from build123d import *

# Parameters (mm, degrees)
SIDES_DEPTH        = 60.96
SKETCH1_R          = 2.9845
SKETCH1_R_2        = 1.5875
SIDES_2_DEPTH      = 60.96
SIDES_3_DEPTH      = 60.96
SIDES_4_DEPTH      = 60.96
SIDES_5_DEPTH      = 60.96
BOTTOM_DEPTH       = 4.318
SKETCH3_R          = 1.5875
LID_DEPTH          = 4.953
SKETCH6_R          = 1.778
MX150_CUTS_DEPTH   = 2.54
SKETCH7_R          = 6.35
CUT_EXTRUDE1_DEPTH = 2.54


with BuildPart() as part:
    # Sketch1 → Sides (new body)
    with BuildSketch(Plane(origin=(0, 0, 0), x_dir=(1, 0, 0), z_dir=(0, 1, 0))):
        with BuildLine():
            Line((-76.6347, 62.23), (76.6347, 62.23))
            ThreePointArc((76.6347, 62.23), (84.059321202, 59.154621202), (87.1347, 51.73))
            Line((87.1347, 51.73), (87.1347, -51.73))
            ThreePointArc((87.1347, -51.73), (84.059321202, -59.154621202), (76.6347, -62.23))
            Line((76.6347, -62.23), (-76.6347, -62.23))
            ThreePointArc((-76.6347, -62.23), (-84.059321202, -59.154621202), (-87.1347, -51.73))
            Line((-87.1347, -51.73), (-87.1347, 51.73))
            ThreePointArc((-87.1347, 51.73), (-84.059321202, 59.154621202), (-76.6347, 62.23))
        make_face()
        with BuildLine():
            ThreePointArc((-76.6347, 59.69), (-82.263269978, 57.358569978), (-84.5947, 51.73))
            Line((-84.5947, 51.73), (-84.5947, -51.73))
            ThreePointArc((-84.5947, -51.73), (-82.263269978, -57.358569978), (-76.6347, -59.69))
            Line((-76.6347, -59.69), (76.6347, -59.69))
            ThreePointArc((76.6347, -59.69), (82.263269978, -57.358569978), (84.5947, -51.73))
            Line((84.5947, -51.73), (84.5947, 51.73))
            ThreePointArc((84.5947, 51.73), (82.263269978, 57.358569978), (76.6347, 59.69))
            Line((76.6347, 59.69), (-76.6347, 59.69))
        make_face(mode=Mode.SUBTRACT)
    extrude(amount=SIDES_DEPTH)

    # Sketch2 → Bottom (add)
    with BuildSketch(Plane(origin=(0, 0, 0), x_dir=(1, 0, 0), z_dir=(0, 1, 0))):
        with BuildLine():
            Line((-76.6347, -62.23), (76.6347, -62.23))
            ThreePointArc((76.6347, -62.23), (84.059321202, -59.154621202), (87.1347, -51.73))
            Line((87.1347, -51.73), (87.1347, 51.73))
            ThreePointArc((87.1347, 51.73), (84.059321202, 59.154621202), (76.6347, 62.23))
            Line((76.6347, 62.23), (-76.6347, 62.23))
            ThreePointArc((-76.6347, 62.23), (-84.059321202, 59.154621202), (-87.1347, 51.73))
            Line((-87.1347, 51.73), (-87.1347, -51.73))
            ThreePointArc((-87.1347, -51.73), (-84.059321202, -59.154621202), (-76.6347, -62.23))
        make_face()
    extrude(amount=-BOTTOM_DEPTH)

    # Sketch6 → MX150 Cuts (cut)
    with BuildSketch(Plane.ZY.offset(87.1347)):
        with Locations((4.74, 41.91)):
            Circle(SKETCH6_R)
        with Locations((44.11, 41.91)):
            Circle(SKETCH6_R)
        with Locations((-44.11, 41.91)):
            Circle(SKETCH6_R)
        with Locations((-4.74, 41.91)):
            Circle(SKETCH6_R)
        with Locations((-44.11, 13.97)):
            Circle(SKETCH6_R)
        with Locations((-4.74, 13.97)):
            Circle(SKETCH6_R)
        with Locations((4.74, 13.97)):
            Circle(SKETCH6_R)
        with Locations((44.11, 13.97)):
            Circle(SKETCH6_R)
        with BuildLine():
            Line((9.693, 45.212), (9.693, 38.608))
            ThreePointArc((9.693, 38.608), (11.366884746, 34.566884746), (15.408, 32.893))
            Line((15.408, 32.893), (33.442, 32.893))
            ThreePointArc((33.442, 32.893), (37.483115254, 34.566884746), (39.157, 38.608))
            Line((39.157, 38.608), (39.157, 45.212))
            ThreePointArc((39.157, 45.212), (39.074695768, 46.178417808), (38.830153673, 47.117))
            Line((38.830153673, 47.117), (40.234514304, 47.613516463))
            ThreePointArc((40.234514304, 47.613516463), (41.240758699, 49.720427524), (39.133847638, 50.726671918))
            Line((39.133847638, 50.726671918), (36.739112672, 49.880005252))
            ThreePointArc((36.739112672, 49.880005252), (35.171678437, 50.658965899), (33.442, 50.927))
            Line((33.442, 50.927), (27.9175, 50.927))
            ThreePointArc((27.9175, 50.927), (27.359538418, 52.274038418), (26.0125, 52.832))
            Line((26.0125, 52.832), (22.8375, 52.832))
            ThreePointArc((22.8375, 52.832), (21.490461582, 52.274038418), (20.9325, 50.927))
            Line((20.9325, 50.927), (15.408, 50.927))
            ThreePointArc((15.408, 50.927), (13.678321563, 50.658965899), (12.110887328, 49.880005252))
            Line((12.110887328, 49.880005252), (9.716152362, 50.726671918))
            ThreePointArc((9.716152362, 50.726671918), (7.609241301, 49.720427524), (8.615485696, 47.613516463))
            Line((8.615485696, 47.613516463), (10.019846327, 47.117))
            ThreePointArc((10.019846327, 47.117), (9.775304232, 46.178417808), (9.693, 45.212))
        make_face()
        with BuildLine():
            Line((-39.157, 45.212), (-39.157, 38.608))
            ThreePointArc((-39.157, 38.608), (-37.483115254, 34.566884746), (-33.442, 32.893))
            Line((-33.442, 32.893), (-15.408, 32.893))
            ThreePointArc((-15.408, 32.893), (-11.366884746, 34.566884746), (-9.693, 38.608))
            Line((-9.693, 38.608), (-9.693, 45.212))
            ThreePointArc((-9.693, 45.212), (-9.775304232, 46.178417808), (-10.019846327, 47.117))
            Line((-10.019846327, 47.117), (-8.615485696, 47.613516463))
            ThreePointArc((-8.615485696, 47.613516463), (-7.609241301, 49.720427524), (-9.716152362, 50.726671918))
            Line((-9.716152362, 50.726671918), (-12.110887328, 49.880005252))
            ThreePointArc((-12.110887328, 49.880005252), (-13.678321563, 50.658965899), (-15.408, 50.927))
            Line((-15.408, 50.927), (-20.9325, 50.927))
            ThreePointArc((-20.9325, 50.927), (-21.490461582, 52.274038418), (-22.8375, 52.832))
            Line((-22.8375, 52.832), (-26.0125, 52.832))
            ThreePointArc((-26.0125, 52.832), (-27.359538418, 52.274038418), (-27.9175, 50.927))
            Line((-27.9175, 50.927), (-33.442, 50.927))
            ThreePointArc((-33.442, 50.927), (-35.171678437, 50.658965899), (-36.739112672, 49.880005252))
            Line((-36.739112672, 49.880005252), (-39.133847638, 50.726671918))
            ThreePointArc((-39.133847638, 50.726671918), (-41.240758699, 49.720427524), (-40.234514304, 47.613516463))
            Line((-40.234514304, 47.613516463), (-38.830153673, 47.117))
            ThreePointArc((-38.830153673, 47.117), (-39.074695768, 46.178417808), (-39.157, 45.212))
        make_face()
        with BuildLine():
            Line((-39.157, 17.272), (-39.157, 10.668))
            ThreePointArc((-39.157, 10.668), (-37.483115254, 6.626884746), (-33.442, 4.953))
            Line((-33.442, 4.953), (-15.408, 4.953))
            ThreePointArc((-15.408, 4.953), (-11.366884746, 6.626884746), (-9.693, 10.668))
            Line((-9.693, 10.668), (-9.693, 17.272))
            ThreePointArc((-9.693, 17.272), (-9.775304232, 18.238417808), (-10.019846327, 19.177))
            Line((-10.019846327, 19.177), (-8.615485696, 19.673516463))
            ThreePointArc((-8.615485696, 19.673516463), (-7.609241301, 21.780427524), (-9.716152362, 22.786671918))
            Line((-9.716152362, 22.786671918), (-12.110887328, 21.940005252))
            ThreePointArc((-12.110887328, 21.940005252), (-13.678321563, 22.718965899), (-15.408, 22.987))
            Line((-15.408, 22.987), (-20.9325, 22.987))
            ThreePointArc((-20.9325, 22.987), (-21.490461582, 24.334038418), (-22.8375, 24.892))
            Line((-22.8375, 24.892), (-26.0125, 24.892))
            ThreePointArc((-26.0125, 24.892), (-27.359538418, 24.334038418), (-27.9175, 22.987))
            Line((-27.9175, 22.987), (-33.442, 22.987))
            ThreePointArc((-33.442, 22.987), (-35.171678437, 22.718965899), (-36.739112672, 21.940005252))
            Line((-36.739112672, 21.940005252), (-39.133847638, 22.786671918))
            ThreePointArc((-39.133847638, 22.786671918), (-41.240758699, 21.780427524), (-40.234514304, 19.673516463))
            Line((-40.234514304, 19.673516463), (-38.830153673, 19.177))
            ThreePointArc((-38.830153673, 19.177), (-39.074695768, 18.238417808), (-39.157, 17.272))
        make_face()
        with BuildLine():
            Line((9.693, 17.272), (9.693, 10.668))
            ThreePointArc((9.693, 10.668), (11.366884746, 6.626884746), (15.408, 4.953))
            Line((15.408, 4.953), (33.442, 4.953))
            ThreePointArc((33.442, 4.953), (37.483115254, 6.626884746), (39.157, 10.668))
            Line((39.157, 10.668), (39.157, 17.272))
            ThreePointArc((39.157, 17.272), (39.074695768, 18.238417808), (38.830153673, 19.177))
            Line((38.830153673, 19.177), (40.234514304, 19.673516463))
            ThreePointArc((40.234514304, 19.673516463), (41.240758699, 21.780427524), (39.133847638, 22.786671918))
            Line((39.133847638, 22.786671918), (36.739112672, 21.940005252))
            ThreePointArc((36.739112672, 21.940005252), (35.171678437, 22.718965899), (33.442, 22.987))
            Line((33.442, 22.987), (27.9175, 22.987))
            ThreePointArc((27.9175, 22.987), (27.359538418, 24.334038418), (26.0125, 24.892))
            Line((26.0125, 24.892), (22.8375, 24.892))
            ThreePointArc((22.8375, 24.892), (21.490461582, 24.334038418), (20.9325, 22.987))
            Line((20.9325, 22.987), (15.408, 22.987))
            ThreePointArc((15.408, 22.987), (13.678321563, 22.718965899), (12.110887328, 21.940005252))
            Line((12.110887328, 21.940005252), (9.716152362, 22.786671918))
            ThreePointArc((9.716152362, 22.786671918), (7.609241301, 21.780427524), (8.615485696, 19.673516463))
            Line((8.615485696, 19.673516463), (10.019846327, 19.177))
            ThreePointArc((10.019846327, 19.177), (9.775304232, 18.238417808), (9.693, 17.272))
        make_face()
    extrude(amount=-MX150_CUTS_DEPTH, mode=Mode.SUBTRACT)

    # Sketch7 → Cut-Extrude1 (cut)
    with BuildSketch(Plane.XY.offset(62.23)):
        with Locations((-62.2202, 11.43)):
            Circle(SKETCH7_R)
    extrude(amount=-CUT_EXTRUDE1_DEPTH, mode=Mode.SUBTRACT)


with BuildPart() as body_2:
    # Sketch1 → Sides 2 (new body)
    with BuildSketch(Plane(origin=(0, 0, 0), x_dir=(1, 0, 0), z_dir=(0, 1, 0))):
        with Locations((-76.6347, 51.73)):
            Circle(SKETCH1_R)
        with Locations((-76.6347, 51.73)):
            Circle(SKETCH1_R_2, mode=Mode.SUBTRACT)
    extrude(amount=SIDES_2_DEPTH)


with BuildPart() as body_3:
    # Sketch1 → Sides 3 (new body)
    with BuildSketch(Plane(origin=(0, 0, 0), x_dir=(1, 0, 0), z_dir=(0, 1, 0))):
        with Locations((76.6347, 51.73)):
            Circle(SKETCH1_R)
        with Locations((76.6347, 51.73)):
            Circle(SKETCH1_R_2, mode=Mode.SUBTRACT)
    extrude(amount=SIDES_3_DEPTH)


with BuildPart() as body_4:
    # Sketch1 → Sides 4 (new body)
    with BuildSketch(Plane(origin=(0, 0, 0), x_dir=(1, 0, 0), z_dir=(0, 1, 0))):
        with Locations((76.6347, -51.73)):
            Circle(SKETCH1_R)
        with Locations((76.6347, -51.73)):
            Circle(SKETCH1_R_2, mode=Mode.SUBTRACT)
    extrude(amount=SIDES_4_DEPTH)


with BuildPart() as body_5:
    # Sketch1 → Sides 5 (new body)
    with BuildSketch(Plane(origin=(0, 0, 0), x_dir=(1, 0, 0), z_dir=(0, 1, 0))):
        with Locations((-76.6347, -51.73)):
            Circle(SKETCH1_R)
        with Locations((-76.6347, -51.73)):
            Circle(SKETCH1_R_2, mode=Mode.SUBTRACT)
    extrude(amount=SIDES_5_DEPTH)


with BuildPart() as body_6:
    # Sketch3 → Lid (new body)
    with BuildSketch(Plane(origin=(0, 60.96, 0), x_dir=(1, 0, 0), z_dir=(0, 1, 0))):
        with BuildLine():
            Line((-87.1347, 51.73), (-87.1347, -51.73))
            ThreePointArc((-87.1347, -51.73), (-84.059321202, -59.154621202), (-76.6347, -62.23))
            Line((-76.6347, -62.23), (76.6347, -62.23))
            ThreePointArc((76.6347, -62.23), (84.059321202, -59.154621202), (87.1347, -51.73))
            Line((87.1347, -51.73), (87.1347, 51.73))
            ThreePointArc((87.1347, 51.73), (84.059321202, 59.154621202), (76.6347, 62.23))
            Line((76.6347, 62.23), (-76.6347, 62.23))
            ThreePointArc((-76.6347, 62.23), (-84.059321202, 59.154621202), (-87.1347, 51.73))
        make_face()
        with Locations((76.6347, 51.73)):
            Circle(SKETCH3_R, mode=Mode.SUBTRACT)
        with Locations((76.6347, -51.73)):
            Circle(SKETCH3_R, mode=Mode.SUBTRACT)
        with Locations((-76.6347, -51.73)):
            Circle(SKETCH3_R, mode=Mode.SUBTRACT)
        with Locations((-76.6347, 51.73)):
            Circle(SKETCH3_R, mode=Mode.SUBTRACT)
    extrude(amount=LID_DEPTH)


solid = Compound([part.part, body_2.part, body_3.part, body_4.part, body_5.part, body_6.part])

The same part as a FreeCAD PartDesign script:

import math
import FreeCAD as App
import Part
import Sketcher
Q = App.Units.Quantity

doc = App.newDocument("Part")
body = doc.addObject("PartDesign::Body", "Body")

# Sketch on XZ plane
sketch1 = body.newObject("Sketcher::SketchObject", "Sketch")
sketch1.AttachmentSupport = (doc.getObject("XZ_Plane"), [""])
sketch1.MapMode = "FlatFace"
sketch1.addGeometry(Part.LineSegment(App.Vector(77, -62, 0), App.Vector(-77, -62, 0)), False)
sketch1.addGeometry(Part.ArcOfCircle(Part.Circle(App.Vector(-77, -52, 0), App.Vector(0, 0, 1), 11), math.radians(-180), math.radians(-90)), False)
sketch1.addGeometry(Part.LineSegment(App.Vector(-87, -52, 0), App.Vector(-87, 52, 0)), False)
sketch1.addGeometry(Part.ArcOfCircle(Part.Circle(App.Vector(-77, 52, 0), App.Vector(0, 0, 1), 11), math.radians(90), math.radians(180)), False)
sketch1.addGeometry(Part.LineSegment(App.Vector(-77, 62, 0), App.Vector(77, 62, 0)), False)
sketch1.addGeometry(Part.ArcOfCircle(Part.Circle(App.Vector(77, 52, 0), App.Vector(0, 0, 1), 11), math.radians(0), math.radians(90)), False)
sketch1.addGeometry(Part.LineSegment(App.Vector(87, 52, 0), App.Vector(87, -52, 0)), False)
sketch1.addGeometry(Part.ArcOfCircle(Part.Circle(App.Vector(77, -52, 0), App.Vector(0, 0, 1), 11), math.radians(-90), math.radians(0)), False)
sketch1.addGeometry(Part.LineSegment(App.Vector(-77, -60, 0), App.Vector(77, -60, 0)), False)
sketch1.addGeometry(Part.ArcOfCircle(Part.Circle(App.Vector(77, -52, 0), App.Vector(0, 0, 1), 8), math.radians(-90), math.radians(0)), False)
sketch1.addGeometry(Part.LineSegment(App.Vector(85, -52, 0), App.Vector(85, 52, 0)), False)
sketch1.addGeometry(Part.ArcOfCircle(Part.Circle(App.Vector(77, 52, 0), App.Vector(0, 0, 1), 8), math.radians(0), math.radians(90)), False)
sketch1.addGeometry(Part.LineSegment(App.Vector(77, 60, 0), App.Vector(-77, 60, 0)), False)
sketch1.addGeometry(Part.ArcOfCircle(Part.Circle(App.Vector(-77, 52, 0), App.Vector(0, 0, 1), 8), math.radians(90), math.radians(180)), False)
sketch1.addGeometry(Part.LineSegment(App.Vector(-85, 52, 0), App.Vector(-85, -52, 0)), False)
sketch1.addGeometry(Part.ArcOfCircle(Part.Circle(App.Vector(-77, -52, 0), App.Vector(0, 0, 1), 8), math.radians(-180), math.radians(-90)), False)
sketch1.addConstraint(Sketcher.Constraint("Tangent", 0, 2, 1, 2))
sketch1.addConstraint(Sketcher.Constraint("Tangent", 1, 1, 2, 1))
sketch1.addConstraint(Sketcher.Constraint("Tangent", 2, 2, 3, 2))
sketch1.addConstraint(Sketcher.Constraint("Tangent", 3, 1, 4, 1))
sketch1.addConstraint(Sketcher.Constraint("Tangent", 4, 2, 5, 2))
sketch1.addConstraint(Sketcher.Constraint("Tangent", 5, 1, 6, 1))
sketch1.addConstraint(Sketcher.Constraint("Tangent", 6, 2, 7, 2))
sketch1.addConstraint(Sketcher.Constraint("Tangent", 7, 1, 0, 1))
sketch1.addConstraint(Sketcher.Constraint("Tangent", 8, 2, 9, 1))
sketch1.addConstraint(Sketcher.Constraint("Tangent", 9, 2, 10, 1))
sketch1.addConstraint(Sketcher.Constraint("Tangent", 10, 2, 11, 1))
sketch1.addConstraint(Sketcher.Constraint("Tangent", 11, 2, 12, 1))
sketch1.addConstraint(Sketcher.Constraint("Tangent", 12, 2, 13, 1))
sketch1.addConstraint(Sketcher.Constraint("Tangent", 13, 2, 14, 1))
sketch1.addConstraint(Sketcher.Constraint("Tangent", 14, 2, 15, 1))
sketch1.addConstraint(Sketcher.Constraint("Tangent", 15, 2, 8, 1))
sketch1.addConstraint(Sketcher.Constraint("Horizontal", 0))
sketch1.addConstraint(Sketcher.Constraint("Vertical", 2))
sketch1.addConstraint(Sketcher.Constraint("Horizontal", 4))
sketch1.addConstraint(Sketcher.Constraint("Vertical", 6))
sketch1.addConstraint(Sketcher.Constraint("Horizontal", 8))
sketch1.addConstraint(Sketcher.Constraint("Vertical", 10))
sketch1.addConstraint(Sketcher.Constraint("Horizontal", 12))
sketch1.addConstraint(Sketcher.Constraint("Vertical", 14))
sketch1.addConstraint(Sketcher.Constraint("Coincident", 9, 3, 7, 3))
sketch1.addConstraint(Sketcher.Constraint("Coincident", 11, 3, 5, 3))
sketch1.addConstraint(Sketcher.Constraint("Coincident", 13, 3, 3, 3))
sketch1.addConstraint(Sketcher.Constraint("Equal", 1, 3))
sketch1.addConstraint(Sketcher.Constraint("Equal", 3, 5))
sketch1.addConstraint(Sketcher.Constraint("Equal", 5, 7))
sketch1.addConstraint(Sketcher.Constraint("Equal", 13, 15))
sketch1.addConstraint(Sketcher.Constraint("Symmetric", 1, 3, 5, 3, -1, 1))
sketch1.addConstraint(Sketcher.Constraint("DistanceY", 7, 1, 8, 2, Q("0.1 in")))
sketch1.addConstraint(Sketcher.Constraint("DistanceY", 0, 2, -1, 1, Q("2.45 in")))
sketch1.addConstraint(Sketcher.Constraint("Radius", 1, 10.5))
sketch1.addConstraint(Sketcher.Constraint("DistanceX", 0, 2, 0, 1, 153.2694))
pad1 = body.newObject("PartDesign::Pad", "Pad")
pad1.Profile = sketch1
pad1.Length = Q("2.4 in")
pad1.Reversed = True

# Sketch on XZ plane
sketch2 = body.newObject("Sketcher::SketchObject", "Sketch001")
sketch2.AttachmentSupport = (doc.getObject("XZ_Plane"), [""])
sketch2.MapMode = "FlatFace"
sketch2.addGeometry(Part.LineSegment(App.Vector(-77, 62, 0), App.Vector(77, 62, 0)), False)
sketch2.addGeometry(Part.ArcOfCircle(Part.Circle(App.Vector(77, 52, 0), App.Vector(0, 0, 1), 11), math.radians(0), math.radians(90)), False)
sketch2.addGeometry(Part.LineSegment(App.Vector(87, 52, 0), App.Vector(87, -52, 0)), False)
sketch2.addGeometry(Part.ArcOfCircle(Part.Circle(App.Vector(77, -52, 0), App.Vector(0, 0, 1), 11), math.radians(-90), math.radians(0)), False)
sketch2.addGeometry(Part.LineSegment(App.Vector(77, -62, 0), App.Vector(-77, -62, 0)), False)
sketch2.addGeometry(Part.ArcOfCircle(Part.Circle(App.Vector(-77, -52, 0), App.Vector(0, 0, 1), 11), math.radians(-180), math.radians(-90)), False)
sketch2.addGeometry(Part.LineSegment(App.Vector(-87, -52, 0), App.Vector(-87, 52, 0)), False)
sketch2.addGeometry(Part.ArcOfCircle(Part.Circle(App.Vector(-77, 52, 0), App.Vector(0, 0, 1), 11), math.radians(90), math.radians(180)), False)
sketch2.addConstraint(Sketcher.Constraint("Tangent", 0, 2, 1, 2))
sketch2.addConstraint(Sketcher.Constraint("Tangent", 1, 1, 2, 1))
sketch2.addConstraint(Sketcher.Constraint("Tangent", 2, 2, 3, 2))
sketch2.addConstraint(Sketcher.Constraint("Tangent", 3, 1, 4, 1))
sketch2.addConstraint(Sketcher.Constraint("Tangent", 4, 2, 5, 2))
sketch2.addConstraint(Sketcher.Constraint("Tangent", 5, 1, 6, 1))
sketch2.addConstraint(Sketcher.Constraint("Tangent", 6, 2, 7, 2))
sketch2.addConstraint(Sketcher.Constraint("Tangent", 7, 1, 0, 1))
sketch2.addConstraint(Sketcher.Constraint("Horizontal", 0))
sketch2.addConstraint(Sketcher.Constraint("Vertical", 2))
sketch2.addConstraint(Sketcher.Constraint("Horizontal", 4))
sketch2.addConstraint(Sketcher.Constraint("Vertical", 6))
sketch2.addConstraint(Sketcher.Constraint("Equal", 1, 3))
sketch2.addConstraint(Sketcher.Constraint("Equal", 3, 5))
sketch2.addConstraint(Sketcher.Constraint("Equal", 5, 7))
sketch2.addConstraint(Sketcher.Constraint("Symmetric", 1, 3, 5, 3, -1, 1))
sketch2.addConstraint(Sketcher.Constraint("DistanceY", 3, 1, 0, 2, Q("4.9 in")))
sketch2.addConstraint(Sketcher.Constraint("Radius", 1, 10.5))
sketch2.addConstraint(Sketcher.Constraint("DistanceX", 0, 1, 0, 2, 153.2694))
pad2 = body.newObject("PartDesign::Pad", "Pad001")
pad2.Profile = sketch2
pad2.Length = Q("0.17 in")

# Sketch on YZ plane
sketch3 = body.newObject("Sketcher::SketchObject", "Sketch002")
sketch3.AttachmentSupport = (doc.getObject("YZ_Plane"), [""])
sketch3.MapMode = "FlatFace"
sketch3.AttachmentOffset = App.Placement(App.Vector(0, 0, -3.4305 * 25.4), App.Rotation())
sketch3.addGeometry(Part.Circle(App.Vector(41.9, 4.7, 0), App.Vector(0, 0, 1), 1.8), False)
sketch3.addGeometry(Part.Circle(App.Vector(41.9, 44.1, 0), App.Vector(0, 0, 1), 1.8), False)
sketch3.addGeometry(Part.Circle(App.Vector(41.9, -44.1, 0), App.Vector(0, 0, 1), 1.8), False)
sketch3.addGeometry(Part.Circle(App.Vector(41.9, -4.7, 0), App.Vector(0, 0, 1), 1.8), False)
sketch3.addGeometry(Part.Circle(App.Vector(14, -44.1, 0), App.Vector(0, 0, 1), 1.8), False)
sketch3.addGeometry(Part.Circle(App.Vector(14, -4.7, 0), App.Vector(0, 0, 1), 1.8), False)
sketch3.addGeometry(Part.Circle(App.Vector(14, 4.7, 0), App.Vector(0, 0, 1), 1.8), False)
sketch3.addGeometry(Part.Circle(App.Vector(14, 44.1, 0), App.Vector(0, 0, 1), 1.8), False)
sketch3.addGeometry(Part.LineSegment(App.Vector(45.2, 9.7, 0), App.Vector(38.6, 9.7, 0)), False)
sketch3.addGeometry(Part.ArcOfCircle(Part.Circle(App.Vector(38.6, 15.4, 0), App.Vector(0, 0, 1), 5.7), math.radians(-180), math.radians(-90)), False)
sketch3.addGeometry(Part.LineSegment(App.Vector(32.9, 15.4, 0), App.Vector(32.9, 33.4, 0)), False)
sketch3.addGeometry(Part.ArcOfCircle(Part.Circle(App.Vector(38.6, 33.4, 0), App.Vector(0, 0, 1), 5.7), math.radians(90), math.radians(180)), False)
sketch3.addGeometry(Part.LineSegment(App.Vector(38.6, 39.2, 0), App.Vector(45.2, 39.2, 0)), False)
sketch3.addGeometry(Part.ArcOfCircle(Part.Circle(App.Vector(45.2, 33.4, 0), App.Vector(0, 0, 1), 5.7), math.radians(70.53), math.radians(90)), False)
sketch3.addGeometry(Part.LineSegment(App.Vector(47.1, 38.8, 0), App.Vector(47.6, 40.2, 0)), False)
sketch3.addGeometry(Part.ArcOfCircle(Part.Circle(App.Vector(49.2, 39.7, 0), App.Vector(0, 0, 1), 1.7), math.radians(-19), math.radians(161)), False)
sketch3.addGeometry(Part.LineSegment(App.Vector(50.7, 39.1, 0), App.Vector(49.9, 36.7, 0)), False)
sketch3.addGeometry(Part.ArcOfCircle(Part.Circle(App.Vector(45.2, 33.4, 0), App.Vector(0, 0, 1), 5.7), math.radians(0), math.radians(35)), False)
sketch3.addGeometry(Part.LineSegment(App.Vector(50.9, 33.4, 0), App.Vector(50.9, 27.9, 0)), False)
sketch3.addGeometry(Part.ArcOfCircle(Part.Circle(App.Vector(50.9, 26, 0), App.Vector(0, 0, 1), 1.9), math.radians(0), math.radians(90)), False)
sketch3.addGeometry(Part.LineSegment(App.Vector(52.8, 26, 0), App.Vector(52.8, 22.8, 0)), False)
sketch3.addGeometry(Part.ArcOfCircle(Part.Circle(App.Vector(50.9, 22.8, 0), App.Vector(0, 0, 1), 1.9), math.radians(-90), math.radians(0)), False)
sketch3.addGeometry(Part.LineSegment(App.Vector(50.9, 20.9, 0), App.Vector(50.9, 15.4, 0)), False)
sketch3.addGeometry(Part.ArcOfCircle(Part.Circle(App.Vector(45.2, 15.4, 0), App.Vector(0, 0, 1), 5.7), math.radians(-35), math.radians(0)), False)
sketch3.addGeometry(Part.LineSegment(App.Vector(49.9, 12.1, 0), App.Vector(50.7, 9.7, 0)), False)
sketch3.addGeometry(Part.ArcOfCircle(Part.Circle(App.Vector(49.2, 9.2, 0), App.Vector(0, 0, 1), 1.7), math.radians(-161), math.radians(19)), False)
sketch3.addGeometry(Part.LineSegment(App.Vector(47.6, 8.6, 0), App.Vector(47.1, 10, 0)), False)
sketch3.addGeometry(Part.ArcOfCircle(Part.Circle(App.Vector(45.2, 15.4, 0), App.Vector(0, 0, 1), 5.7), math.radians(-90), math.radians(-70.53)), False)
sketch3.addGeometry(Part.LineSegment(App.Vector(45.2, -39.2, 0), App.Vector(38.6, -39.2, 0)), False)
sketch3.addGeometry(Part.ArcOfCircle(Part.Circle(App.Vector(38.6, -33.4, 0), App.Vector(0, 0, 1), 5.7), math.radians(-180), math.radians(-90)), False)
sketch3.addGeometry(Part.LineSegment(App.Vector(32.9, -33.4, 0), App.Vector(32.9, -15.4, 0)), False)
sketch3.addGeometry(Part.ArcOfCircle(Part.Circle(App.Vector(38.6, -15.4, 0), App.Vector(0, 0, 1), 5.7), math.radians(90), math.radians(180)), False)
sketch3.addGeometry(Part.LineSegment(App.Vector(38.6, -9.7, 0), App.Vector(45.2, -9.7, 0)), False)
sketch3.addGeometry(Part.ArcOfCircle(Part.Circle(App.Vector(45.2, -15.4, 0), App.Vector(0, 0, 1), 5.7), math.radians(70.53), math.radians(90)), False)
sketch3.addGeometry(Part.LineSegment(App.Vector(47.1, -10, 0), App.Vector(47.6, -8.6, 0)), False)
sketch3.addGeometry(Part.ArcOfCircle(Part.Circle(App.Vector(49.2, -9.2, 0), App.Vector(0, 0, 1), 1.7), math.radians(-19), math.radians(161)), False)
sketch3.addGeometry(Part.LineSegment(App.Vector(50.7, -9.7, 0), App.Vector(49.9, -12.1, 0)), False)
sketch3.addGeometry(Part.ArcOfCircle(Part.Circle(App.Vector(45.2, -15.4, 0), App.Vector(0, 0, 1), 5.7), math.radians(0), math.radians(35)), False)
sketch3.addGeometry(Part.LineSegment(App.Vector(50.9, -15.4, 0), App.Vector(50.9, -20.9, 0)), False)
sketch3.addGeometry(Part.ArcOfCircle(Part.Circle(App.Vector(50.9, -22.8, 0), App.Vector(0, 0, 1), 1.9), math.radians(0), math.radians(90)), False)
sketch3.addGeometry(Part.LineSegment(App.Vector(52.8, -22.8, 0), App.Vector(52.8, -26, 0)), False)
sketch3.addGeometry(Part.ArcOfCircle(Part.Circle(App.Vector(50.9, -26, 0), App.Vector(0, 0, 1), 1.9), math.radians(-90), math.radians(0)), False)
sketch3.addGeometry(Part.LineSegment(App.Vector(50.9, -27.9, 0), App.Vector(50.9, -33.4, 0)), False)
sketch3.addGeometry(Part.ArcOfCircle(Part.Circle(App.Vector(45.2, -33.4, 0), App.Vector(0, 0, 1), 5.7), math.radians(-35), math.radians(0)), False)
sketch3.addGeometry(Part.LineSegment(App.Vector(49.9, -36.7, 0), App.Vector(50.7, -39.1, 0)), False)
sketch3.addGeometry(Part.ArcOfCircle(Part.Circle(App.Vector(49.2, -39.7, 0), App.Vector(0, 0, 1), 1.7), math.radians(-161), math.radians(19)), False)
sketch3.addGeometry(Part.LineSegment(App.Vector(47.6, -40.2, 0), App.Vector(47.1, -38.8, 0)), False)
sketch3.addGeometry(Part.ArcOfCircle(Part.Circle(App.Vector(45.2, -33.4, 0), App.Vector(0, 0, 1), 5.7), math.radians(-90), math.radians(-70.53)), False)
sketch3.addGeometry(Part.LineSegment(App.Vector(17.3, -39.2, 0), App.Vector(10.7, -39.2, 0)), False)
sketch3.addGeometry(Part.ArcOfCircle(Part.Circle(App.Vector(10.7, -33.4, 0), App.Vector(0, 0, 1), 5.7), math.radians(-180), math.radians(-90)), False)
sketch3.addGeometry(Part.LineSegment(App.Vector(5, -33.4, 0), App.Vector(5, -15.4, 0)), False)
sketch3.addGeometry(Part.ArcOfCircle(Part.Circle(App.Vector(10.7, -15.4, 0), App.Vector(0, 0, 1), 5.7), math.radians(90), math.radians(180)), False)
sketch3.addGeometry(Part.LineSegment(App.Vector(10.7, -9.7, 0), App.Vector(17.3, -9.7, 0)), False)
sketch3.addGeometry(Part.ArcOfCircle(Part.Circle(App.Vector(17.3, -15.4, 0), App.Vector(0, 0, 1), 5.7), math.radians(70.53), math.radians(90)), False)
sketch3.addGeometry(Part.LineSegment(App.Vector(19.2, -10, 0), App.Vector(19.7, -8.6, 0)), False)
sketch3.addGeometry(Part.ArcOfCircle(Part.Circle(App.Vector(21.2, -9.2, 0), App.Vector(0, 0, 1), 1.7), math.radians(-19), math.radians(161)), False)
sketch3.addGeometry(Part.LineSegment(App.Vector(22.8, -9.7, 0), App.Vector(21.9, -12.1, 0)), False)
sketch3.addGeometry(Part.ArcOfCircle(Part.Circle(App.Vector(17.3, -15.4, 0), App.Vector(0, 0, 1), 5.7), math.radians(0), math.radians(35)), False)
sketch3.addGeometry(Part.LineSegment(App.Vector(23, -15.4, 0), App.Vector(23, -20.9, 0)), False)
sketch3.addGeometry(Part.ArcOfCircle(Part.Circle(App.Vector(23, -22.8, 0), App.Vector(0, 0, 1), 1.9), math.radians(0), math.radians(90)), False)
sketch3.addGeometry(Part.LineSegment(App.Vector(24.9, -22.8, 0), App.Vector(24.9, -26, 0)), False)
sketch3.addGeometry(Part.ArcOfCircle(Part.Circle(App.Vector(23, -26, 0), App.Vector(0, 0, 1), 1.9), math.radians(-90), math.radians(0)), False)
sketch3.addGeometry(Part.LineSegment(App.Vector(23, -27.9, 0), App.Vector(23, -33.4, 0)), False)
sketch3.addGeometry(Part.ArcOfCircle(Part.Circle(App.Vector(17.3, -33.4, 0), App.Vector(0, 0, 1), 5.7), math.radians(-35), math.radians(0)), False)
sketch3.addGeometry(Part.LineSegment(App.Vector(21.9, -36.7, 0), App.Vector(22.8, -39.1, 0)), False)
sketch3.addGeometry(Part.ArcOfCircle(Part.Circle(App.Vector(21.2, -39.7, 0), App.Vector(0, 0, 1), 1.7), math.radians(-161), math.radians(19)), False)
sketch3.addGeometry(Part.LineSegment(App.Vector(19.7, -40.2, 0), App.Vector(19.2, -38.8, 0)), False)
sketch3.addGeometry(Part.ArcOfCircle(Part.Circle(App.Vector(17.3, -33.4, 0), App.Vector(0, 0, 1), 5.7), math.radians(-90), math.radians(-70.53)), False)
sketch3.addGeometry(Part.LineSegment(App.Vector(17.3, 9.7, 0), App.Vector(10.7, 9.7, 0)), False)
sketch3.addGeometry(Part.ArcOfCircle(Part.Circle(App.Vector(10.7, 15.4, 0), App.Vector(0, 0, 1), 5.7), math.radians(-180), math.radians(-90)), False)
sketch3.addGeometry(Part.LineSegment(App.Vector(5, 15.4, 0), App.Vector(5, 33.4, 0)), False)
sketch3.addGeometry(Part.ArcOfCircle(Part.Circle(App.Vector(10.7, 33.4, 0), App.Vector(0, 0, 1), 5.7), math.radians(90), math.radians(180)), False)
sketch3.addGeometry(Part.LineSegment(App.Vector(10.7, 39.2, 0), App.Vector(17.3, 39.2, 0)), False)
sketch3.addGeometry(Part.ArcOfCircle(Part.Circle(App.Vector(17.3, 33.4, 0), App.Vector(0, 0, 1), 5.7), math.radians(70.53), math.radians(90)), False)
sketch3.addGeometry(Part.LineSegment(App.Vector(19.2, 38.8, 0), App.Vector(19.7, 40.2, 0)), False)
sketch3.addGeometry(Part.ArcOfCircle(Part.Circle(App.Vector(21.2, 39.7, 0), App.Vector(0, 0, 1), 1.7), math.radians(-19), math.radians(161)), False)
sketch3.addGeometry(Part.LineSegment(App.Vector(22.8, 39.1, 0), App.Vector(21.9, 36.7, 0)), False)
sketch3.addGeometry(Part.ArcOfCircle(Part.Circle(App.Vector(17.3, 33.4, 0), App.Vector(0, 0, 1), 5.7), math.radians(0), math.radians(35)), False)
sketch3.addGeometry(Part.LineSegment(App.Vector(23, 33.4, 0), App.Vector(23, 27.9, 0)), False)
sketch3.addGeometry(Part.ArcOfCircle(Part.Circle(App.Vector(23, 26, 0), App.Vector(0, 0, 1), 1.9), math.radians(0), math.radians(90)), False)
sketch3.addGeometry(Part.LineSegment(App.Vector(24.9, 26, 0), App.Vector(24.9, 22.8, 0)), False)
sketch3.addGeometry(Part.ArcOfCircle(Part.Circle(App.Vector(23, 22.8, 0), App.Vector(0, 0, 1), 1.9), math.radians(-90), math.radians(0)), False)
sketch3.addGeometry(Part.LineSegment(App.Vector(23, 20.9, 0), App.Vector(23, 15.4, 0)), False)
sketch3.addGeometry(Part.ArcOfCircle(Part.Circle(App.Vector(17.3, 15.4, 0), App.Vector(0, 0, 1), 5.7), math.radians(-35), math.radians(0)), False)
sketch3.addGeometry(Part.LineSegment(App.Vector(21.9, 12.1, 0), App.Vector(22.8, 9.7, 0)), False)
sketch3.addGeometry(Part.ArcOfCircle(Part.Circle(App.Vector(21.2, 9.2, 0), App.Vector(0, 0, 1), 1.7), math.radians(-161), math.radians(19)), False)
sketch3.addGeometry(Part.LineSegment(App.Vector(19.7, 8.6, 0), App.Vector(19.2, 10, 0)), False)
sketch3.addGeometry(Part.ArcOfCircle(Part.Circle(App.Vector(17.3, 15.4, 0), App.Vector(0, 0, 1), 5.7), math.radians(-90), math.radians(-70.53)), False)
sketch3.addConstraint(Sketcher.Constraint("Tangent", 8, 2, 9, 2))
sketch3.addConstraint(Sketcher.Constraint("Tangent", 9, 1, 10, 1))
sketch3.addConstraint(Sketcher.Constraint("Tangent", 10, 2, 11, 2))
sketch3.addConstraint(Sketcher.Constraint("Tangent", 11, 1, 12, 1))
sketch3.addConstraint(Sketcher.Constraint("Tangent", 12, 2, 13, 2))
sketch3.addConstraint(Sketcher.Constraint("Coincident", 13, 1, 14, 1))
sketch3.addConstraint(Sketcher.Constraint("Tangent", 14, 2, 15, 2))
sketch3.addConstraint(Sketcher.Constraint("Tangent", 15, 1, 16, 1))
sketch3.addConstraint(Sketcher.Constraint("Coincident", 16, 2, 17, 2))
sketch3.addConstraint(Sketcher.Constraint("Tangent", 17, 1, 18, 1))
sketch3.addConstraint(Sketcher.Constraint("Coincident", 18, 2, 19, 2))
sketch3.addConstraint(Sketcher.Constraint("Tangent", 19, 1, 20, 1))
sketch3.addConstraint(Sketcher.Constraint("Tangent", 20, 2, 21, 2))
sketch3.addConstraint(Sketcher.Constraint("Coincident", 21, 1, 22, 1))
sketch3.addConstraint(Sketcher.Constraint("Tangent", 22, 2, 23, 2))
sketch3.addConstraint(Sketcher.Constraint("Coincident", 23, 1, 24, 1))
sketch3.addConstraint(Sketcher.Constraint("Tangent", 24, 2, 25, 2))
sketch3.addConstraint(Sketcher.Constraint("Tangent", 25, 1, 26, 1))
sketch3.addConstraint(Sketcher.Constraint("Coincident", 26, 2, 27, 2))
sketch3.addConstraint(Sketcher.Constraint("Tangent", 27, 1, 8, 1))
sketch3.addConstraint(Sketcher.Constraint("Tangent", 28, 2, 29, 2))
sketch3.addConstraint(Sketcher.Constraint("Tangent", 29, 1, 30, 1))
sketch3.addConstraint(Sketcher.Constraint("Tangent", 30, 2, 31, 2))
sketch3.addConstraint(Sketcher.Constraint("Tangent", 31, 1, 32, 1))
sketch3.addConstraint(Sketcher.Constraint("Tangent", 32, 2, 33, 2))
sketch3.addConstraint(Sketcher.Constraint("Coincident", 33, 1, 34, 1))
sketch3.addConstraint(Sketcher.Constraint("Tangent", 34, 2, 35, 2))
sketch3.addConstraint(Sketcher.Constraint("Tangent", 35, 1, 36, 1))
sketch3.addConstraint(Sketcher.Constraint("Coincident", 36, 2, 37, 2))
sketch3.addConstraint(Sketcher.Constraint("Tangent", 37, 1, 38, 1))
sketch3.addConstraint(Sketcher.Constraint("Coincident", 38, 2, 39, 2))
sketch3.addConstraint(Sketcher.Constraint("Tangent", 39, 1, 40, 1))
sketch3.addConstraint(Sketcher.Constraint("Tangent", 40, 2, 41, 2))
sketch3.addConstraint(Sketcher.Constraint("Coincident", 41, 1, 42, 1))
sketch3.addConstraint(Sketcher.Constraint("Tangent", 42, 2, 43, 2))
sketch3.addConstraint(Sketcher.Constraint("Coincident", 43, 1, 44, 1))
sketch3.addConstraint(Sketcher.Constraint("Tangent", 44, 2, 45, 2))
sketch3.addConstraint(Sketcher.Constraint("Tangent", 45, 1, 46, 1))
sketch3.addConstraint(Sketcher.Constraint("Coincident", 46, 2, 47, 2))
sketch3.addConstraint(Sketcher.Constraint("Tangent", 47, 1, 28, 1))
sketch3.addConstraint(Sketcher.Constraint("Tangent", 48, 2, 49, 2))
sketch3.addConstraint(Sketcher.Constraint("Tangent", 49, 1, 50, 1))
sketch3.addConstraint(Sketcher.Constraint("Tangent", 50, 2, 51, 2))
sketch3.addConstraint(Sketcher.Constraint("Tangent", 51, 1, 52, 1))
sketch3.addConstraint(Sketcher.Constraint("Tangent", 52, 2, 53, 2))
sketch3.addConstraint(Sketcher.Constraint("Coincident", 53, 1, 54, 1))
sketch3.addConstraint(Sketcher.Constraint("Tangent", 54, 2, 55, 2))
sketch3.addConstraint(Sketcher.Constraint("Tangent", 55, 1, 56, 1))
sketch3.addConstraint(Sketcher.Constraint("Coincident", 56, 2, 57, 2))
sketch3.addConstraint(Sketcher.Constraint("Tangent", 57, 1, 58, 1))
sketch3.addConstraint(Sketcher.Constraint("Coincident", 58, 2, 59, 2))
sketch3.addConstraint(Sketcher.Constraint("Tangent", 59, 1, 60, 1))
sketch3.addConstraint(Sketcher.Constraint("Tangent", 60, 2, 61, 2))
sketch3.addConstraint(Sketcher.Constraint("Coincident", 61, 1, 62, 1))
sketch3.addConstraint(Sketcher.Constraint("Tangent", 62, 2, 63, 2))
sketch3.addConstraint(Sketcher.Constraint("Coincident", 63, 1, 64, 1))
sketch3.addConstraint(Sketcher.Constraint("Tangent", 64, 2, 65, 2))
sketch3.addConstraint(Sketcher.Constraint("Tangent", 65, 1, 66, 1))
sketch3.addConstraint(Sketcher.Constraint("Coincident", 66, 2, 67, 2))
sketch3.addConstraint(Sketcher.Constraint("Tangent", 67, 1, 48, 1))
sketch3.addConstraint(Sketcher.Constraint("Tangent", 68, 2, 69, 2))
sketch3.addConstraint(Sketcher.Constraint("Tangent", 69, 1, 70, 1))
sketch3.addConstraint(Sketcher.Constraint("Tangent", 70, 2, 71, 2))
sketch3.addConstraint(Sketcher.Constraint("Tangent", 71, 1, 72, 1))
sketch3.addConstraint(Sketcher.Constraint("Tangent", 72, 2, 73, 2))
sketch3.addConstraint(Sketcher.Constraint("Coincident", 73, 1, 74, 1))
sketch3.addConstraint(Sketcher.Constraint("Tangent", 74, 2, 75, 2))
sketch3.addConstraint(Sketcher.Constraint("Tangent", 75, 1, 76, 1))
sketch3.addConstraint(Sketcher.Constraint("Coincident", 76, 2, 77, 2))
sketch3.addConstraint(Sketcher.Constraint("Tangent", 77, 1, 78, 1))
sketch3.addConstraint(Sketcher.Constraint("Coincident", 78, 2, 79, 2))
sketch3.addConstraint(Sketcher.Constraint("Tangent", 79, 1, 80, 1))
sketch3.addConstraint(Sketcher.Constraint("Tangent", 80, 2, 81, 2))
sketch3.addConstraint(Sketcher.Constraint("Coincident", 81, 1, 82, 1))
sketch3.addConstraint(Sketcher.Constraint("Tangent", 82, 2, 83, 2))
sketch3.addConstraint(Sketcher.Constraint("Coincident", 83, 1, 84, 1))
sketch3.addConstraint(Sketcher.Constraint("Tangent", 84, 2, 85, 2))
sketch3.addConstraint(Sketcher.Constraint("Tangent", 85, 1, 86, 1))
sketch3.addConstraint(Sketcher.Constraint("Coincident", 86, 2, 87, 2))
sketch3.addConstraint(Sketcher.Constraint("Tangent", 87, 1, 68, 1))
sketch3.addConstraint(Sketcher.Constraint("Horizontal", 8))
sketch3.addConstraint(Sketcher.Constraint("Vertical", 10))
sketch3.addConstraint(Sketcher.Constraint("Horizontal", 12))
sketch3.addConstraint(Sketcher.Constraint("Vertical", 18))
sketch3.addConstraint(Sketcher.Constraint("Vertical", 20))
sketch3.addConstraint(Sketcher.Constraint("Vertical", 22))
sketch3.addConstraint(Sketcher.Constraint("Horizontal", 28))
sketch3.addConstraint(Sketcher.Constraint("Vertical", 30))
sketch3.addConstraint(Sketcher.Constraint("Horizontal", 32))
sketch3.addConstraint(Sketcher.Constraint("Vertical", 38))
sketch3.addConstraint(Sketcher.Constraint("Vertical", 40))
sketch3.addConstraint(Sketcher.Constraint("Vertical", 42))
sketch3.addConstraint(Sketcher.Constraint("Horizontal", 48))
sketch3.addConstraint(Sketcher.Constraint("Vertical", 50))
sketch3.addConstraint(Sketcher.Constraint("Horizontal", 52))
sketch3.addConstraint(Sketcher.Constraint("Vertical", 58))
sketch3.addConstraint(Sketcher.Constraint("Vertical", 60))
sketch3.addConstraint(Sketcher.Constraint("Vertical", 62))
sketch3.addConstraint(Sketcher.Constraint("Horizontal", 68))
sketch3.addConstraint(Sketcher.Constraint("Vertical", 70))
sketch3.addConstraint(Sketcher.Constraint("Horizontal", 72))
sketch3.addConstraint(Sketcher.Constraint("Vertical", 78))
sketch3.addConstraint(Sketcher.Constraint("Vertical", 80))
sketch3.addConstraint(Sketcher.Constraint("Vertical", 82))
sketch3.addConstraint(Sketcher.Constraint("Coincident", 17, 3, 13, 3))
sketch3.addConstraint(Sketcher.Constraint("Coincident", 27, 3, 23, 3))
sketch3.addConstraint(Sketcher.Constraint("Coincident", 37, 3, 33, 3))
sketch3.addConstraint(Sketcher.Constraint("Coincident", 47, 3, 43, 3))
sketch3.addConstraint(Sketcher.Constraint("Coincident", 57, 3, 53, 3))
sketch3.addConstraint(Sketcher.Constraint("Coincident", 67, 3, 63, 3))
sketch3.addConstraint(Sketcher.Constraint("Coincident", 77, 3, 73, 3))
sketch3.addConstraint(Sketcher.Constraint("Coincident", 87, 3, 83, 3))
sketch3.addConstraint(Sketcher.Constraint("Equal", 0, 1))
sketch3.addConstraint(Sketcher.Constraint("Equal", 1, 2))
sketch3.addConstraint(Sketcher.Constraint("Equal", 2, 3))
sketch3.addConstraint(Sketcher.Constraint("Equal", 3, 4))
sketch3.addConstraint(Sketcher.Constraint("Equal", 4, 5))
sketch3.addConstraint(Sketcher.Constraint("Equal", 5, 6))
sketch3.addConstraint(Sketcher.Constraint("Equal", 6, 7))
sketch3.addConstraint(Sketcher.Constraint("Equal", 9, 11))
sketch3.addConstraint(Sketcher.Constraint("Equal", 11, 13))
sketch3.addConstraint(Sketcher.Constraint("Equal", 13, 17))
sketch3.addConstraint(Sketcher.Constraint("Equal", 19, 21))
sketch3.addConstraint(Sketcher.Constraint("Equal", 17, 23))
sketch3.addConstraint(Sketcher.Constraint("Equal", 15, 25))
sketch3.addConstraint(Sketcher.Constraint("Equal", 23, 27))
sketch3.addConstraint(Sketcher.Constraint("Equal", 27, 29))
sketch3.addConstraint(Sketcher.Constraint("Equal", 29, 31))
sketch3.addConstraint(Sketcher.Constraint("Equal", 31, 33))
sketch3.addConstraint(Sketcher.Constraint("Equal", 25, 35))
sketch3.addConstraint(Sketcher.Constraint("Equal", 33, 37))
sketch3.addConstraint(Sketcher.Constraint("Equal", 21, 39))
sketch3.addConstraint(Sketcher.Constraint("Equal", 39, 41))
sketch3.addConstraint(Sketcher.Constraint("Equal", 37, 43))
sketch3.addConstraint(Sketcher.Constraint("Equal", 35, 45))
sketch3.addConstraint(Sketcher.Constraint("Equal", 43, 47))
sketch3.addConstraint(Sketcher.Constraint("Equal", 47, 49))
sketch3.addConstraint(Sketcher.Constraint("Equal", 49, 51))
sketch3.addConstraint(Sketcher.Constraint("Equal", 51, 53))
sketch3.addConstraint(Sketcher.Constraint("Equal", 45, 55))
sketch3.addConstraint(Sketcher.Constraint("Equal", 53, 57))
sketch3.addConstraint(Sketcher.Constraint("Equal", 41, 59))
sketch3.addConstraint(Sketcher.Constraint("Equal", 59, 61))
sketch3.addConstraint(Sketcher.Constraint("Equal", 57, 63))
sketch3.addConstraint(Sketcher.Constraint("Equal", 55, 65))
sketch3.addConstraint(Sketcher.Constraint("Equal", 63, 67))
sketch3.addConstraint(Sketcher.Constraint("Equal", 67, 69))
sketch3.addConstraint(Sketcher.Constraint("Equal", 69, 71))
sketch3.addConstraint(Sketcher.Constraint("Equal", 71, 73))
sketch3.addConstraint(Sketcher.Constraint("Equal", 65, 75))
sketch3.addConstraint(Sketcher.Constraint("Equal", 73, 77))
sketch3.addConstraint(Sketcher.Constraint("Equal", 61, 79))
sketch3.addConstraint(Sketcher.Constraint("Equal", 79, 81))
sketch3.addConstraint(Sketcher.Constraint("Equal", 77, 83))
sketch3.addConstraint(Sketcher.Constraint("Equal", 75, 85))
sketch3.addConstraint(Sketcher.Constraint("Equal", 83, 87))
sketch3.addConstraint(Sketcher.Constraint("Symmetric", 1, 3, 2, 3, -1))
sketch3.addConstraint(Sketcher.Constraint("Symmetric", 0, 3, 3, 3, -1))
sketch3.addConstraint(Sketcher.Constraint("Symmetric", 5, 3, 6, 3, -1))
sketch3.addConstraint(Sketcher.Constraint("Symmetric", 4, 3, 7, 3, -1))
sketch3.addConstraint(Sketcher.Constraint("Symmetric", 11, 3, 29, 3, -1))
sketch3.addConstraint(Sketcher.Constraint("Symmetric", 23, 3, 33, 3, -1))
sketch3.addConstraint(Sketcher.Constraint("Symmetric", 25, 3, 35, 3, -1))
sketch3.addConstraint(Sketcher.Constraint("Symmetric", 21, 3, 39, 3, -1))
sketch3.addConstraint(Sketcher.Constraint("Symmetric", 15, 3, 45, 3, -1))
sketch3.addConstraint(Sketcher.Constraint("Symmetric", 51, 3, 69, 3, -1))
sketch3.addConstraint(Sketcher.Constraint("Symmetric", 63, 3, 73, 3, -1))
sketch3.addConstraint(Sketcher.Constraint("Symmetric", 65, 3, 75, 3, -1))
sketch3.addConstraint(Sketcher.Constraint("Symmetric", 61, 3, 79, 3, -1))
sketch3.addConstraint(Sketcher.Constraint("Symmetric", 55, 3, 85, 3, -1))
sketch3.addConstraint(Sketcher.Constraint("Symmetric", 18, 2, 41, 1, -1))
sketch3.addConstraint(Sketcher.Constraint("Symmetric", 58, 2, 81, 1, -1))
sketch3.addConstraint(Sketcher.Constraint("Parallel", 14, 16))
sketch3.addConstraint(Sketcher.Constraint("Parallel", 24, 26))
sketch3.addConstraint(Sketcher.Constraint("Parallel", 16, 34))
sketch3.addConstraint(Sketcher.Constraint("Parallel", 34, 36))
sketch3.addConstraint(Sketcher.Constraint("Parallel", 26, 44))
sketch3.addConstraint(Sketcher.Constraint("Parallel", 44, 46))
sketch3.addConstraint(Sketcher.Constraint("Parallel", 36, 54))
sketch3.addConstraint(Sketcher.Constraint("Parallel", 54, 56))
sketch3.addConstraint(Sketcher.Constraint("Parallel", 46, 64))
sketch3.addConstraint(Sketcher.Constraint("Parallel", 64, 66))
sketch3.addConstraint(Sketcher.Constraint("Parallel", 56, 74))
sketch3.addConstraint(Sketcher.Constraint("Parallel", 74, 76))
sketch3.addConstraint(Sketcher.Constraint("Parallel", 66, 84))
sketch3.addConstraint(Sketcher.Constraint("Parallel", 84, 86))
sketch3.addConstraint(Sketcher.Constraint("Horizontal", 2, 3, 4, 3))
sketch3.addConstraint(Sketcher.Constraint("Horizontal", 3, 3, 5, 3))
sketch3.addConstraint(Sketcher.Constraint("Horizontal", 47, 3, 49, 3))
sketch3.addConstraint(Sketcher.Constraint("Horizontal", 37, 3, 51, 3))
sketch3.addConstraint(Sketcher.Constraint("Horizontal", 35, 3, 55, 3))
sketch3.addConstraint(Sketcher.Constraint("Horizontal", 39, 3, 59, 3))
sketch3.addConstraint(Sketcher.Constraint("Horizontal", 41, 3, 61, 3))
sketch3.addConstraint(Sketcher.Constraint("Horizontal", 45, 3, 65, 3))
sketch3.addConstraint(Sketcher.Constraint("Horizontal", 33, 1, 53, 1))
sketch3.addConstraint(Sketcher.Constraint("Horizontal", 43, 1, 63, 1))
sketch3.addConstraint(Sketcher.Constraint("Vertical", 0, 3, 1, 3))
sketch3.addConstraint(Sketcher.Constraint("Vertical", 4, 3, 5, 3))
sketch3.addConstraint(Sketcher.Constraint("Vertical", 17, 3, 23, 3))
sketch3.addConstraint(Sketcher.Constraint("Vertical", 15, 3, 25, 3))
sketch3.addConstraint(Sketcher.Constraint("Vertical", 57, 3, 63, 3))
sketch3.addConstraint(Sketcher.Constraint("Vertical", 41, 3, 17, 1))
sketch3.addConstraint(Sketcher.Constraint("Vertical", 16, 2, 23, 1))
sketch3.addConstraint(Sketcher.Constraint("Vertical", 15, 1, 24, 2))
sketch3.addConstraint(Sketcher.Constraint("Vertical", 81, 3, 57, 1))
sketch3.addConstraint(Sketcher.Constraint("Equal", 32, 48))
sketch3.addConstraint(Sketcher.Constraint("Equal", 18, 22))
sketch3.addConstraint(Sketcher.Constraint("Diameter", 0, Q("0.14 in")))
sketch3.addConstraint(Sketcher.Constraint("Radius", 9, Q("0.225 in")))
sketch3.addConstraint(Sketcher.Constraint("Radius", 15, Q("0.065 in")))
sketch3.addConstraint(Sketcher.Constraint("Radius", 19, Q("0.075 in")))
sketch3.addConstraint(Sketcher.Constraint("Distance", 16, Q("0.1 in")))
sketch3.addConstraint(Sketcher.Constraint("DistanceX", 8, 2, 8, 1, Q("0.26 in")))
sketch3.addConstraint(Sketcher.Constraint("DistanceY", 10, 1, 10, 2, Q("0.71 in")))
sketch3.addConstraint(Sketcher.Constraint("DistanceY", 20, 2, 20, 1, Q("0.125 in")))
sketch3.addConstraint(Sketcher.Constraint("DistanceX", -1, 1, 0, 3, Q("1.65 in")))
sketch3.addConstraint(Sketcher.Constraint("DistanceX", -1, 1, 4, 3, Q("0.55 in")))
sketch3.addConstraint(Sketcher.Constraint("DistanceX", -1, 1, 9, 3, Q("1.52 in")))
sketch3.addConstraint(Sketcher.Constraint("DistanceX", -1, 1, 49, 3, Q("0.42 in")))
sketch3.addConstraint(Sketcher.Constraint("DistanceX", -1, 1, 13, 1, Q("1.855 in")))
sketch3.addConstraint(Sketcher.Constraint("DistanceY", -1, 1, 0, 3, 4.74))
sketch3.addConstraint(Sketcher.Constraint("DistanceY", -1, 1, 1, 3, 44.11))
sketch3.addConstraint(Sketcher.Constraint("DistanceY", -1, 1, 9, 3, 15.408))
sketch3.addConstraint(Sketcher.Constraint("Distance", 14, 1.489549))
pocket1 = body.newObject("PartDesign::Pocket", "Pocket")
pocket1.Profile = sketch3
pocket1.Length = Q("0.1 in")
pocket1.Reversed = True

# Sketch on XY plane
sketch4 = body.newObject("Sketcher::SketchObject", "Sketch003")
sketch4.AttachmentSupport = (doc.getObject("XY_Plane"), [""])
sketch4.MapMode = "FlatFace"
sketch4.AttachmentOffset = App.Placement(App.Vector(0, 0, 2.45 * 25.4), App.Rotation())
sketch4.addGeometry(Part.Circle(App.Vector(-62, 11, 0), App.Vector(0, 0, 1), 6), False)
sketch4.addConstraint(Sketcher.Constraint("Diameter", 0, Q("0.5 in")))
sketch4.addConstraint(Sketcher.Constraint("DistanceY", -1, 1, 0, 3, Q("0.45 in")))
sketch4.addConstraint(Sketcher.Constraint("DistanceX", 0, 3, -1, 1, 62.2202))
pocket2 = body.newObject("PartDesign::Pocket", "Pocket001")
pocket2.Profile = sketch4
pocket2.Length = Q("0.1 in")
body2 = doc.addObject("PartDesign::Body", "Body001")

# Sketch on XZ plane
sketch5 = body2.newObject("Sketcher::SketchObject", "Sketch004")
sketch5.AttachmentSupport = (doc.getObject("XZ_Plane001"), [""])
sketch5.MapMode = "FlatFace"
sketch5.addGeometry(Part.Circle(App.Vector(-76.6, -51.7, 0), App.Vector(0, 0, 1), 3), False)
sketch5.addGeometry(Part.Circle(App.Vector(-76.6, -51.7, 0), App.Vector(0, 0, 1), 1.6), False)
sketch5.addConstraint(Sketcher.Constraint("Coincident", 1, 3, 0, 3))
sketch5.addConstraint(Sketcher.Constraint("Diameter", 0, Q("0.235 in")))
sketch5.addConstraint(Sketcher.Constraint("Diameter", 1, Q("0.125 in")))
sketch5.addConstraint(Sketcher.Constraint("DistanceX", 0, 3, -1, 1, 76.6347))
sketch5.addConstraint(Sketcher.Constraint("DistanceY", 0, 3, -1, 1, 51.73))
pad3 = body2.newObject("PartDesign::Pad", "Pad002")
pad3.Profile = sketch5
pad3.Length = Q("2.4 in")
pad3.Reversed = True
body3 = doc.addObject("PartDesign::Body", "Body002")

# Sketch on XZ plane
sketch6 = body3.newObject("Sketcher::SketchObject", "Sketch005")
sketch6.AttachmentSupport = (doc.getObject("XZ_Plane002"), [""])
sketch6.MapMode = "FlatFace"
sketch6.addGeometry(Part.Circle(App.Vector(76.6, -51.7, 0), App.Vector(0, 0, 1), 3), False)
sketch6.addGeometry(Part.Circle(App.Vector(76.6, -51.7, 0), App.Vector(0, 0, 1), 1.6), False)
sketch6.addConstraint(Sketcher.Constraint("Coincident", 1, 3, 0, 3))
sketch6.addConstraint(Sketcher.Constraint("Diameter", 0, Q("0.235 in")))
sketch6.addConstraint(Sketcher.Constraint("Diameter", 1, Q("0.125 in")))
sketch6.addConstraint(Sketcher.Constraint("DistanceX", -1, 1, 0, 3, 76.6347))
sketch6.addConstraint(Sketcher.Constraint("DistanceY", 0, 3, -1, 1, 51.73))
pad4 = body3.newObject("PartDesign::Pad", "Pad003")
pad4.Profile = sketch6
pad4.Length = Q("2.4 in")
pad4.Reversed = True
body4 = doc.addObject("PartDesign::Body", "Body003")

# Sketch on XZ plane
sketch7 = body4.newObject("Sketcher::SketchObject", "Sketch006")
sketch7.AttachmentSupport = (doc.getObject("XZ_Plane003"), [""])
sketch7.MapMode = "FlatFace"
sketch7.addGeometry(Part.Circle(App.Vector(76.6, 51.7, 0), App.Vector(0, 0, 1), 3), False)
sketch7.addGeometry(Part.Circle(App.Vector(76.6, 51.7, 0), App.Vector(0, 0, 1), 1.6), False)
sketch7.addConstraint(Sketcher.Constraint("Coincident", 1, 3, 0, 3))
sketch7.addConstraint(Sketcher.Constraint("Diameter", 0, Q("0.235 in")))
sketch7.addConstraint(Sketcher.Constraint("Diameter", 1, Q("0.125 in")))
sketch7.addConstraint(Sketcher.Constraint("DistanceX", -1, 1, 0, 3, 76.6347))
sketch7.addConstraint(Sketcher.Constraint("DistanceY", -1, 1, 0, 3, 51.73))
pad5 = body4.newObject("PartDesign::Pad", "Pad004")
pad5.Profile = sketch7
pad5.Length = Q("2.4 in")
pad5.Reversed = True
body5 = doc.addObject("PartDesign::Body", "Body004")

# Sketch on XZ plane
sketch8 = body5.newObject("Sketcher::SketchObject", "Sketch007")
sketch8.AttachmentSupport = (doc.getObject("XZ_Plane004"), [""])
sketch8.MapMode = "FlatFace"
sketch8.addGeometry(Part.Circle(App.Vector(-76.6, 51.7, 0), App.Vector(0, 0, 1), 3), False)
sketch8.addGeometry(Part.Circle(App.Vector(-76.6, 51.7, 0), App.Vector(0, 0, 1), 1.6), False)
sketch8.addConstraint(Sketcher.Constraint("Coincident", 1, 3, 0, 3))
sketch8.addConstraint(Sketcher.Constraint("Diameter", 0, Q("0.235 in")))
sketch8.addConstraint(Sketcher.Constraint("Diameter", 1, Q("0.125 in")))
sketch8.addConstraint(Sketcher.Constraint("DistanceX", 0, 3, -1, 1, 76.6347))
sketch8.addConstraint(Sketcher.Constraint("DistanceY", -1, 1, 0, 3, 51.73))
pad6 = body5.newObject("PartDesign::Pad", "Pad005")
pad6.Profile = sketch8
pad6.Length = Q("2.4 in")
pad6.Reversed = True
body6 = doc.addObject("PartDesign::Body", "Body005")

# Sketch on XZ plane
sketch9 = body6.newObject("Sketcher::SketchObject", "Sketch008")
sketch9.AttachmentSupport = (doc.getObject("XZ_Plane005"), [""])
sketch9.MapMode = "FlatFace"
sketch9.AttachmentOffset = App.Placement(App.Vector(0, 0, -2.4 * 25.4), App.Rotation())
sketch9.addGeometry(Part.LineSegment(App.Vector(-87.1, -51.7, 0), App.Vector(-87.1, 51.7, 0)), False)
sketch9.addGeometry(Part.ArcOfCircle(Part.Circle(App.Vector(-76.6, 51.7, 0), App.Vector(0, 0, 1), 10.5), math.radians(90), math.radians(180)), False)
sketch9.addGeometry(Part.LineSegment(App.Vector(-76.6, 62.2, 0), App.Vector(76.6, 62.2, 0)), False)
sketch9.addGeometry(Part.ArcOfCircle(Part.Circle(App.Vector(76.6, 51.7, 0), App.Vector(0, 0, 1), 10.5), math.radians(0), math.radians(90)), False)
sketch9.addGeometry(Part.LineSegment(App.Vector(87.1, 51.7, 0), App.Vector(87.1, -51.7, 0)), False)
sketch9.addGeometry(Part.ArcOfCircle(Part.Circle(App.Vector(76.6, -51.7, 0), App.Vector(0, 0, 1), 10.5), math.radians(-90), math.radians(0)), False)
sketch9.addGeometry(Part.LineSegment(App.Vector(76.6, -62.2, 0), App.Vector(-76.6, -62.2, 0)), False)
sketch9.addGeometry(Part.ArcOfCircle(Part.Circle(App.Vector(-76.6, -51.7, 0), App.Vector(0, 0, 1), 10.5), math.radians(-180), math.radians(-90)), False)
sketch9.addGeometry(Part.Circle(App.Vector(-76.6, 51.7, 0), App.Vector(0, 0, 1), 1.6), False)
sketch9.addGeometry(Part.Circle(App.Vector(76.6, 51.7, 0), App.Vector(0, 0, 1), 1.6), False)
sketch9.addGeometry(Part.Circle(App.Vector(-76.6, -51.7, 0), App.Vector(0, 0, 1), 1.6), False)
sketch9.addGeometry(Part.Circle(App.Vector(76.6, -51.7, 0), App.Vector(0, 0, 1), 1.6), False)
sketch9.addConstraint(Sketcher.Constraint("Tangent", 0, 2, 1, 2))
sketch9.addConstraint(Sketcher.Constraint("Tangent", 1, 1, 2, 1))
sketch9.addConstraint(Sketcher.Constraint("Tangent", 2, 2, 3, 2))
sketch9.addConstraint(Sketcher.Constraint("Tangent", 3, 1, 4, 1))
sketch9.addConstraint(Sketcher.Constraint("Tangent", 4, 2, 5, 2))
sketch9.addConstraint(Sketcher.Constraint("Tangent", 5, 1, 6, 1))
sketch9.addConstraint(Sketcher.Constraint("Tangent", 6, 2, 7, 2))
sketch9.addConstraint(Sketcher.Constraint("Tangent", 7, 1, 0, 1))
sketch9.addConstraint(Sketcher.Constraint("Vertical", 0))
sketch9.addConstraint(Sketcher.Constraint("Horizontal", 2))
sketch9.addConstraint(Sketcher.Constraint("Vertical", 4))
sketch9.addConstraint(Sketcher.Constraint("Horizontal", 6))
sketch9.addConstraint(Sketcher.Constraint("Coincident", 8, 3, 1, 3))
sketch9.addConstraint(Sketcher.Constraint("Coincident", 9, 3, 3, 3))
sketch9.addConstraint(Sketcher.Constraint("Coincident", 10, 3, 7, 3))
sketch9.addConstraint(Sketcher.Constraint("Coincident", 11, 3, 5, 3))
sketch9.addConstraint(Sketcher.Constraint("Equal", 1, 3))
sketch9.addConstraint(Sketcher.Constraint("Equal", 3, 5))
sketch9.addConstraint(Sketcher.Constraint("Equal", 5, 7))
sketch9.addConstraint(Sketcher.Constraint("Equal", 8, 9))
sketch9.addConstraint(Sketcher.Constraint("Equal", 9, 10))
sketch9.addConstraint(Sketcher.Constraint("Equal", 10, 11))
sketch9.addConstraint(Sketcher.Constraint("Symmetric", 1, 3, 5, 3, -1, 1))
sketch9.addConstraint(Sketcher.Constraint("Diameter", 8, Q("0.125 in")))
sketch9.addConstraint(Sketcher.Constraint("DistanceY", -1, 1, 1, 1, Q("2.45 in")))
sketch9.addConstraint(Sketcher.Constraint("Radius", 1, 10.5))
sketch9.addConstraint(Sketcher.Constraint("DistanceX", 2, 1, 2, 2, 153.2694))
pad7 = body6.newObject("PartDesign::Pad", "Pad006")
pad7.Profile = sketch9
pad7.Length = Q("0.195 in")
pad7.Reversed = True

doc.recompute()
